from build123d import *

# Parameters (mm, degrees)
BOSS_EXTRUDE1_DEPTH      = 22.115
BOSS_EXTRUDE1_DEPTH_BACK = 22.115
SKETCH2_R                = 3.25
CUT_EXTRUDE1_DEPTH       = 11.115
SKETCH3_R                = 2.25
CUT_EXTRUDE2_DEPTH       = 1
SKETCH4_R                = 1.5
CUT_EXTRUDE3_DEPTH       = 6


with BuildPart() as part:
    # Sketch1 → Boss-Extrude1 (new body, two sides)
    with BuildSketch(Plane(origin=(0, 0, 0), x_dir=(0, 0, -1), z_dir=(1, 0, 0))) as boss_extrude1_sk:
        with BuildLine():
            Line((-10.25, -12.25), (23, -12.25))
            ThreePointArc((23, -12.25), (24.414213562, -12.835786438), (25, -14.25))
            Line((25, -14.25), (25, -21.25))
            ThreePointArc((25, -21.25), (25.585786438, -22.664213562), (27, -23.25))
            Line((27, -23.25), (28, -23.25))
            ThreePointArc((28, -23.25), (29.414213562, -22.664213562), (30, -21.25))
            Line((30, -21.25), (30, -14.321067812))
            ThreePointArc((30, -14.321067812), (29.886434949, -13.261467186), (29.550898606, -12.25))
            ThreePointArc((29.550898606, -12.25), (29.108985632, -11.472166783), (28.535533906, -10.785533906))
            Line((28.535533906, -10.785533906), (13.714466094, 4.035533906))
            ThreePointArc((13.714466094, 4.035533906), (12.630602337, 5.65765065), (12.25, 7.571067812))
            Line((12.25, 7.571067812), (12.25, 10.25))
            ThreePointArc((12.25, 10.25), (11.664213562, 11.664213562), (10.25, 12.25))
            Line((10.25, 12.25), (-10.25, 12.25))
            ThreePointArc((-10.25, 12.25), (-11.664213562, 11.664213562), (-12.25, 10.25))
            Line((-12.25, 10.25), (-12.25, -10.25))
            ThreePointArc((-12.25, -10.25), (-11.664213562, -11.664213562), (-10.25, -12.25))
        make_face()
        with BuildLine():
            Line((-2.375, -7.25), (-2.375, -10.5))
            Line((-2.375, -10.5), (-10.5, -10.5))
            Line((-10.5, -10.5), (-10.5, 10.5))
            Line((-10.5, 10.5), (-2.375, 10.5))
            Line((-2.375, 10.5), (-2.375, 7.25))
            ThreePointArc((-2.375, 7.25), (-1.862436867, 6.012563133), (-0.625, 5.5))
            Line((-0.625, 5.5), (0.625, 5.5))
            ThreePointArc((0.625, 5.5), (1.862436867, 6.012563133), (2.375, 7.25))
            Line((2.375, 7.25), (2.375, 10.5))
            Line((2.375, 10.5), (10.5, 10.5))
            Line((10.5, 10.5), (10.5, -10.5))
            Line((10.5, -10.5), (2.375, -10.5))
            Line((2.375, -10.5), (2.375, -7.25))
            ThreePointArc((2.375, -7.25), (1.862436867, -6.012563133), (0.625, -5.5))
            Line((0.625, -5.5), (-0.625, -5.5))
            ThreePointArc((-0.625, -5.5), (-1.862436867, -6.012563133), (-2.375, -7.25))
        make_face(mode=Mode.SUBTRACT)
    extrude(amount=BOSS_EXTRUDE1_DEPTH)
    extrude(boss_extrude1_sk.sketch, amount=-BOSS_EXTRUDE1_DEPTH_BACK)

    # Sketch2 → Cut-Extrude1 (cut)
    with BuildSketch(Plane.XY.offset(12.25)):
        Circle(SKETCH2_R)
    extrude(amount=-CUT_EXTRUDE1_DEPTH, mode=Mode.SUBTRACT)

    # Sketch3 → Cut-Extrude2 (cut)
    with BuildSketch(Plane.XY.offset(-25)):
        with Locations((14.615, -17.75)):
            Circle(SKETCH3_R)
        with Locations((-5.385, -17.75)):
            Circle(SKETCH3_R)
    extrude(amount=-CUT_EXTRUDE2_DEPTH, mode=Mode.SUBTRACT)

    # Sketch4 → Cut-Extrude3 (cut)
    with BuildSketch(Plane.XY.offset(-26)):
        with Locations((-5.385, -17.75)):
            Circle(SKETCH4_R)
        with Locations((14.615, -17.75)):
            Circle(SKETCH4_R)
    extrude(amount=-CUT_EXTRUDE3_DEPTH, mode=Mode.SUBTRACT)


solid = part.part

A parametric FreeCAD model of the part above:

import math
import FreeCAD as App
import Part
import Sketcher
from FreeCAD import Vector
Q = App.Units.Quantity

doc = App.newDocument("Part")
body = doc.addObject("PartDesign::Body", "Body")

# Sketch on YZ plane
sketch1 = body.newObject("Sketcher::SketchObject", "Sketch")
sketch1.AttachmentSupport = (doc.getObject("YZ_Plane"), [""])
sketch1.MapMode = "FlatFace"
sketch1.addGeometry([
    Part.LineSegment(Vector(-12.25, 10.25, 0), Vector(-12.25, -23, 0)),  # 0
    Part.ArcOfCircle(Part.Circle(Vector(-14.25, -23, 0), Vector(0, 0, 1), 2), math.radians(-90), math.radians(0)),  # 1
    Part.LineSegment(Vector(-14.25, -25, 0), Vector(-21.25, -25, 0)),  # 2
    Part.ArcOfCircle(Part.Circle(Vector(-21.25, -27, 0), Vector(0, 0, 1), 2), math.radians(90), math.radians(180)),  # 3
    Part.LineSegment(Vector(-23.25, -27, 0), Vector(-23.25, -28, 0)),  # 4
    Part.ArcOfCircle(Part.Circle(Vector(-21.25, -28, 0), Vector(0, 0, 1), 2), math.radians(-180), math.radians(-90)),  # 5
    Part.LineSegment(Vector(-21.25, -30, 0), Vector(-14.321068, -30, 0)),  # 6
    Part.ArcOfCircle(Part.Circle(Vector(-14.321068, -25, 0), Vector(0, 0, 1), 5), math.radians(-90), math.radians(-65.5302)),  # 7
    Part.ArcOfCircle(Part.Circle(Vector(-14.321068, -25, 0), Vector(0, 0, 1), 5), math.radians(-65.530199), math.radians(-45)),  # 8
    Part.LineSegment(Vector(-10.785534, -28.535534, 0), Vector(4.035534, -13.714466, 0)),  # 9
    Part.ArcOfCircle(Part.Circle(Vector(7.571068, -17.25, 0), Vector(0, 0, 1), 5), math.radians(90), math.radians(135)),  # 10
    Part.LineSegment(Vector(7.571068, -12.25, 0), Vector(10.25, -12.25, 0)),  # 11
    Part.ArcOfCircle(Part.Circle(Vector(10.25, -10.25, 0), Vector(0, 0, 1), 2), math.radians(-90), math.radians(0)),  # 12
    Part.LineSegment(Vector(12.25, -10.25, 0), Vector(12.25, 10.25, 0)),  # 13
    Part.ArcOfCircle(Part.Circle(Vector(10.25, 10.25, 0), Vector(0, 0, 1), 2), math.radians(0), math.radians(90)),  # 14
    Part.LineSegment(Vector(10.25, 12.25, 0), Vector(-10.25, 12.25, 0)),  # 15
    Part.ArcOfCircle(Part.Circle(Vector(-10.25, 10.25, 0), Vector(0, 0, 1), 2), math.radians(90), math.radians(180)),  # 16
    Part.ArcOfCircle(Part.Circle(Vector(-7.25, 0.625, 0), Vector(0, 0, 1), 1.75), math.radians(0), math.radians(90)),  # 17
    Part.LineSegment(Vector(-7.25, 2.375, 0), Vector(-10.5, 2.375, 0)),  # 18
    Part.LineSegment(Vector(-10.5, 2.375, 0), Vector(-10.5, 10.5, 0)),  # 19
    Part.LineSegment(Vector(-10.5, 10.5, 0), Vector(10.5, 10.5, 0)),  # 20
    Part.LineSegment(Vector(10.5, 10.5, 0), Vector(10.5, 2.375, 0)),  # 21
    Part.LineSegment(Vector(10.5, 2.375, 0), Vector(7.25, 2.375, 0)),  # 22
    Part.ArcOfCircle(Part.Circle(Vector(7.25, 0.625, 0), Vector(0, 0, 1), 1.75), math.radians(90), math.radians(180)),  # 23
    Part.LineSegment(Vector(5.5, 0.625, 0), Vector(5.5, -0.625, 0)),  # 24
    Part.ArcOfCircle(Part.Circle(Vector(7.25, -0.625, 0), Vector(0, 0, 1), 1.75), math.radians(180), math.radians(270)),  # 25
    Part.LineSegment(Vector(7.25, -2.375, 0), Vector(10.5, -2.375, 0)),  # 26
    Part.LineSegment(Vector(10.5, -2.375, 0), Vector(10.5, -10.5, 0)),  # 27
    Part.LineSegment(Vector(10.5, -10.5, 0), Vector(-10.5, -10.5, 0)),  # 28
    Part.LineSegment(Vector(-10.5, -10.5, 0), Vector(-10.5, -2.375, 0)),  # 29
    Part.LineSegment(Vector(-10.5, -2.375, 0), Vector(-7.25, -2.375, 0)),  # 30
    Part.ArcOfCircle(Part.Circle(Vector(-7.25, -0.625, 0), Vector(0, 0, 1), 1.75), math.radians(-90), math.radians(0)),  # 31
    Part.LineSegment(Vector(-5.5, -0.625, 0), Vector(-5.5, 0.625, 0)),  # 32
], False)
sketch1.addConstraint([
    Sketcher.Constraint("Tangent", 0, 2, 1, 2),
    Sketcher.Constraint("Tangent", 1, 1, 2, 1),
    Sketcher.Constraint("Tangent", 2, 2, 3, 1),
    Sketcher.Constraint("Tangent", 3, 2, 4, 1),
    Sketcher.Constraint("Tangent", 4, 2, 5, 1),
    Sketcher.Constraint("Tangent", 5, 2, 6, 1),
    Sketcher.Constraint("Tangent", 6, 2, 7, 1),
    Sketcher.Constraint("Tangent", 7, 2, 8, 1),
    Sketcher.Constraint("Tangent", 8, 2, 9, 1),
    Sketcher.Constraint("Tangent", 9, 2, 10, 2),
    Sketcher.Constraint("Tangent", 10, 1, 11, 1),
    Sketcher.Constraint("Tangent", 11, 2, 12, 1),
    Sketcher.Constraint("Tangent", 12, 2, 13, 1),
    Sketcher.Constraint("Tangent", 13, 2, 14, 1),
    Sketcher.Constraint("Tangent", 14, 2, 15, 1),
    Sketcher.Constraint("Tangent", 15, 2, 16, 1),
    Sketcher.Constraint("Tangent", 16, 2, 0, 1),
    Sketcher.Constraint("Tangent", 17, 2, 18, 1),
    Sketcher.Constraint("Coincident", 18, 2, 19, 1),
    Sketcher.Constraint("Coincident", 19, 2, 20, 1),
    Sketcher.Constraint("Coincident", 20, 2, 21, 1),
    Sketcher.Constraint("Coincident", 21, 2, 22, 1),
    Sketcher.Constraint("Tangent", 22, 2, 23, 1),
    Sketcher.Constraint("Tangent", 23, 2, 24, 1),
    Sketcher.Constraint("Tangent", 24, 2, 25, 1),
    Sketcher.Constraint("Tangent", 25, 2, 26, 1),
    Sketcher.Constraint("Coincident", 26, 2, 27, 1),
    Sketcher.Constraint("Coincident", 27, 2, 28, 1),
    Sketcher.Constraint("Coincident", 28, 2, 29, 1),
    Sketcher.Constraint("Coincident", 29, 2, 30, 1),
    Sketcher.Constraint("Tangent", 30, 2, 31, 1),
    Sketcher.Constraint("Tangent", 31, 2, 32, 1),
    Sketcher.Constraint("Tangent", 32, 2, 17, 1),
    Sketcher.Constraint("Vertical", 0),
    Sketcher.Constraint("Horizontal", 2),
    Sketcher.Constraint("Vertical", 4),
    Sketcher.Constraint("Horizontal", 6),
    Sketcher.Constraint("Horizontal", 11),
    Sketcher.Constraint("Vertical", 13),
    Sketcher.Constraint("Horizontal", 15),
    Sketcher.Constraint("Horizontal", 18),
    Sketcher.Constraint("Vertical", 19),
    Sketcher.Constraint("Horizontal", 20),
    Sketcher.Constraint("Vertical", 21),
    Sketcher.Constraint("Horizontal", 22),
    Sketcher.Constraint("Vertical", 24),
    Sketcher.Constraint("Horizontal", 26),
    Sketcher.Constraint("Vertical", 27),
    Sketcher.Constraint("Horizontal", 28),
    Sketcher.Constraint("Vertical", 29),
    Sketcher.Constraint("Horizontal", 30),
    Sketcher.Constraint("Vertical", 32),
    Sketcher.Constraint("Equal", 1, 3),
    Sketcher.Constraint("Equal", 3, 5),
    Sketcher.Constraint("Equal", 7, 8),
    Sketcher.Constraint("Equal", 8, 10),
    Sketcher.Constraint("Equal", 5, 12),
    Sketcher.Constraint("Equal", 12, 14),
    Sketcher.Constraint("Equal", 14, 16),
    Sketcher.Constraint("Equal", 17, 23),
    Sketcher.Constraint("Equal", 23, 25),
    Sketcher.Constraint("Equal", 25, 31),
    Sketcher.Constraint("Symmetric", 12, 3, 16, 3, -1, 1),
    Sketcher.Constraint("Symmetric", 17, 3, 25, 3, -1, 1),
    Sketcher.Constraint("Symmetric", 19, 2, 27, 2, -1, 1),
    Sketcher.Constraint("Symmetric", 21, 2, 29, 2, -1, 1),
    Sketcher.Constraint("Symmetric", 18, 2, 21, 2, -2),
    Sketcher.Constraint("Horizontal", 8, 3, 1, 1),
    Sketcher.Constraint("Vertical", 0, 2, 7, 2),
    Sketcher.Constraint("Equal", 15, 13),
    Sketcher.Constraint("Radius", 1, Q("2 mm")),
    Sketcher.Constraint("Radius", 7, Q("5 mm")),
    Sketcher.Constraint("DistanceX", 2, 2, 2, 1, Q("7 mm")),
    Sketcher.Constraint("DistanceX", 20, 1, 20, 2, Q("21 mm")),
    Sketcher.Constraint("Angle", 9, Q("45 deg")),
    Sketcher.Constraint("Radius", 17, Q("1.75 mm")),
    Sketcher.Constraint("DistanceX", 15, 2, 15, 1, Q("20.5 mm")),
    Sketcher.Constraint("DistanceY", 1, 3, -1, 1, Q("23 mm")),
    Sketcher.Constraint("DistanceX", 16, 3, 17, 3, Q("3 mm")),
    Sketcher.Constraint("DistanceY", 31, 3, 17, 2, Q("3 mm")),
    Sketcher.Constraint("DistanceY", -1, 1, 19, 2, Q("10.5 mm")),
    Sketcher.Constraint("DistanceY", 7, 2, -1, 1, Q("29.550899 mm")),
])
pad1 = body.newObject("PartDesign::Pad", "Pad")
pad1.Profile = sketch1
pad1.Type = "TwoLengths"
pad1.Length = 22.115
pad1.Length2 = 22.115

# Sketch on XY plane
sketch2 = body.newObject("Sketcher::SketchObject", "Sketch001")
sketch2.AttachmentSupport = (doc.getObject("XY_Plane"), [""])
sketch2.MapMode = "FlatFace"
sketch2.AttachmentOffset = App.Placement(Vector(0, 0, 12.25), App.Rotation())
sketch2.addGeometry(Part.Circle(Vector(0, 0, 0), Vector(0, 0, 1), 3.25), False)
sketch2.addConstraint([
    Sketcher.Constraint("Coincident", 0, 3, -1, 1),
    Sketcher.Constraint("Diameter", 0, Q("6.5 mm")),
])
pocket1 = body.newObject("PartDesign::Pocket", "Pocket")
pocket1.Profile = sketch2
pocket1.Length = 11.115

# Sketch on XY plane
sketch3 = body.newObject("Sketcher::SketchObject", "Sketch002")
sketch3.AttachmentSupport = (doc.getObject("XY_Plane"), [""])
sketch3.MapMode = "FlatFace"
sketch3.AttachmentOffset = App.Placement(Vector(0, 0, -25), App.Rotation())
sketch3.addGeometry([
    Part.Circle(Vector(14.615, -17.75, 0), Vector(0, 0, 1), 2.25),
    Part.Circle(Vector(-5.385, -17.75, 0), Vector(0, 0, 1), 2.25),
], False)
sketch3.addConstraint([
    Sketcher.Constraint("Equal", 0, 1),
    Sketcher.Constraint("Horizontal", 0, 3, 1, 3),
    Sketcher.Constraint("Diameter", 0, Q("4.5 mm")),
    Sketcher.Constraint("DistanceX", 1, 3, 0, 3, Q("20 mm")),
    Sketcher.Constraint("DistanceY", 0, 3, -1, 1, Q("17.75 mm")),
    Sketcher.Constraint("DistanceX", -1, 1, 0, 3, Q("14.615 mm")),
])
pocket2 = body.newObject("PartDesign::Pocket", "Pocket001")
pocket2.Profile = sketch3
pocket2.Length = 1

# Sketch on XY plane
sketch4 = body.newObject("Sketcher::SketchObject", "Sketch003")
sketch4.AttachmentSupport = (doc.getObject("XY_Plane"), [""])
sketch4.MapMode = "FlatFace"
sketch4.AttachmentOffset = App.Placement(Vector(0, 0, -26), App.Rotation())
sketch4.addGeometry([
    Part.Circle(Vector(-5.385, -17.75, 0), Vector(0, 0, 1), 1.5),
    Part.Circle(Vector(14.615, -17.75, 0), Vector(0, 0, 1), 1.5),
], False)
sketch4.addConstraint([
    Sketcher.Constraint("Equal", 0, 1),
    Sketcher.Constraint("Horizontal", 0, 3, 1, 3),
    Sketcher.Constraint("Diameter", 0, Q("3 mm")),
    Sketcher.Constraint("DistanceX", 0, 3, 1, 3, Q("20 mm")),
    Sketcher.Constraint("DistanceY", 0, 3, -1, 1, Q("17.75 mm")),
    Sketcher.Constraint("DistanceX", 0, 3, -1, 1, Q("5.385 mm")),
])
pocket3 = body.newObject("PartDesign::Pocket", "Pocket002")
pocket3.Profile = sketch4
pocket3.Length = 6

doc.recompute()
